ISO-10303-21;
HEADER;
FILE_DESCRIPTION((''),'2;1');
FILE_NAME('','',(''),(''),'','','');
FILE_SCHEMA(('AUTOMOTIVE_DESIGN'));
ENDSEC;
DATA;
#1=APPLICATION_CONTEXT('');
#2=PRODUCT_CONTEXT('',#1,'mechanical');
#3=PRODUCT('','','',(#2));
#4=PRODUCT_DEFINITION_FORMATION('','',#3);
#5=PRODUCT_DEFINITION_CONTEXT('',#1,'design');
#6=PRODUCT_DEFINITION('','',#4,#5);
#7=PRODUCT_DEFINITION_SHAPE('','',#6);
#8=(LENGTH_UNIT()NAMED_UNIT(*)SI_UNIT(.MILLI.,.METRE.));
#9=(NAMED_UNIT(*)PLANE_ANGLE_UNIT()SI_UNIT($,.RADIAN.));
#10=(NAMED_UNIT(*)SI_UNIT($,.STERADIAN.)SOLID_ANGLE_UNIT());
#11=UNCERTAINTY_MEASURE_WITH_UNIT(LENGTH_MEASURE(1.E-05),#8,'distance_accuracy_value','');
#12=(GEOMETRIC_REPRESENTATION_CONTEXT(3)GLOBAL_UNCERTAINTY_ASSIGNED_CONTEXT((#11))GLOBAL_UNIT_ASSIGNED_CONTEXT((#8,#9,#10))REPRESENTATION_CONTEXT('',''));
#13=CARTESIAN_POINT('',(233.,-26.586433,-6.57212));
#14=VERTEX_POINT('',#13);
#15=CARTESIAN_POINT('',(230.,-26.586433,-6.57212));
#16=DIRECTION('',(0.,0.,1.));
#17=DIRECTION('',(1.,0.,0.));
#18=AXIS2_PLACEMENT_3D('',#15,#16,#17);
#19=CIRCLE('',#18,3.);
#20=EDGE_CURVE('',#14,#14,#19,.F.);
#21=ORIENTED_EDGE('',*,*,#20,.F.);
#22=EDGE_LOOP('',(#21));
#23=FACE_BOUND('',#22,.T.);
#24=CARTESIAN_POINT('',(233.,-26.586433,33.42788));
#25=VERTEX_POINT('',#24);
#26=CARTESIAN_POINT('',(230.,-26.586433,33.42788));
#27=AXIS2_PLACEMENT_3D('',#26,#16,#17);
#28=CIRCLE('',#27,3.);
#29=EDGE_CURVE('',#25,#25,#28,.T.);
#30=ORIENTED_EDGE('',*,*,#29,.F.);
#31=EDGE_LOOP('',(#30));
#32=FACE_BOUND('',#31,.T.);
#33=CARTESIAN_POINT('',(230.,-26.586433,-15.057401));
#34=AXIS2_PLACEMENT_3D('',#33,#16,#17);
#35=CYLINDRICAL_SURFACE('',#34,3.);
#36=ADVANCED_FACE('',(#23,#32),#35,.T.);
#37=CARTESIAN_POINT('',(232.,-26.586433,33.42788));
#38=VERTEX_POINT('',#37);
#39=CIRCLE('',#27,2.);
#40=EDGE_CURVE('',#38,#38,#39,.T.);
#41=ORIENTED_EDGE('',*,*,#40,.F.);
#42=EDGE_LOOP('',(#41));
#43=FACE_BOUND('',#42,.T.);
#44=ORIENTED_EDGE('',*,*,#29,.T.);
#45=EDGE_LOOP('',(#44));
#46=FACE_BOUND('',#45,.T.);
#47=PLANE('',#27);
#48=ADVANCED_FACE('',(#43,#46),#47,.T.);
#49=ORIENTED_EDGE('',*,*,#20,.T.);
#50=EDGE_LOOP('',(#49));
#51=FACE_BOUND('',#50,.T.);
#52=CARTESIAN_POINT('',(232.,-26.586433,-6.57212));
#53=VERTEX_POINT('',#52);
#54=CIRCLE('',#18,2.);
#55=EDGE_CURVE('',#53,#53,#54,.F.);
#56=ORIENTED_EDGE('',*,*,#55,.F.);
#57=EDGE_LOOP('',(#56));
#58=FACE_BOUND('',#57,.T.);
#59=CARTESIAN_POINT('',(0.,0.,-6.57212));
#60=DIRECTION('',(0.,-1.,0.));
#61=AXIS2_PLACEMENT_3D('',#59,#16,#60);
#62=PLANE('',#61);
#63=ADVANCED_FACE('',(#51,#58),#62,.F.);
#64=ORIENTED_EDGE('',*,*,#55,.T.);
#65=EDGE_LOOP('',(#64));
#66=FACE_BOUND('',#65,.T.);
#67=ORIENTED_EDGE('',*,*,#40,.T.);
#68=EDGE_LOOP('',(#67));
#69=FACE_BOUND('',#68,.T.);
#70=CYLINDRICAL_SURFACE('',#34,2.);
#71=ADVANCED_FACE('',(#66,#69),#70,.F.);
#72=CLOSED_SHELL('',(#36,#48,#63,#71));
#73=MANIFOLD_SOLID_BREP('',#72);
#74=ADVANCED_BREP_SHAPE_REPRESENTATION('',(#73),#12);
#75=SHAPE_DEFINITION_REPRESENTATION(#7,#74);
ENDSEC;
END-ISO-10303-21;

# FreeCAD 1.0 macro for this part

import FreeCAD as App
import Part
import Sketcher
Q = App.Units.Quantity

doc = App.newDocument("Part")
body = doc.addObject("PartDesign::Body", "Body")

# Sketch on XY plane
sketch1 = body.newObject("Sketcher::SketchObject", "Sketch")
sketch1.AttachmentSupport = (doc.getObject("XY_Plane"), [""])
sketch1.MapMode = "FlatFace"
sketch1.AttachmentOffset = App.Placement(App.Vector(0, 0, 33.42788), App.Rotation())
sketch1.addGeometry([
    Part.Circle(App.Vector(230, -26.586433, 0), App.Vector(0, 0, 1), 3),
    Part.Circle(App.Vector(230, -26.586433, 0), App.Vector(0, 0, 1), 2),
], False)
sketch1.addConstraint([
    Sketcher.Constraint("Coincident", 1, 3, 0, 3),
    Sketcher.Constraint("Diameter", 0, Q("6 mm")),
    Sketcher.Constraint("Diameter", 1, Q("4 mm")),
    Sketcher.Constraint("DistanceX", -1, 1, 0, 3, Q("230 mm")),
    Sketcher.Constraint("DistanceY", 0, 3, -1, 1, Q("26.586433 mm")),
])
pad1 = body.newObject("PartDesign::Pad", "Pad")
pad1.Profile = sketch1
pad1.Length = 40
pad1.Reversed = True

doc.recompute()
